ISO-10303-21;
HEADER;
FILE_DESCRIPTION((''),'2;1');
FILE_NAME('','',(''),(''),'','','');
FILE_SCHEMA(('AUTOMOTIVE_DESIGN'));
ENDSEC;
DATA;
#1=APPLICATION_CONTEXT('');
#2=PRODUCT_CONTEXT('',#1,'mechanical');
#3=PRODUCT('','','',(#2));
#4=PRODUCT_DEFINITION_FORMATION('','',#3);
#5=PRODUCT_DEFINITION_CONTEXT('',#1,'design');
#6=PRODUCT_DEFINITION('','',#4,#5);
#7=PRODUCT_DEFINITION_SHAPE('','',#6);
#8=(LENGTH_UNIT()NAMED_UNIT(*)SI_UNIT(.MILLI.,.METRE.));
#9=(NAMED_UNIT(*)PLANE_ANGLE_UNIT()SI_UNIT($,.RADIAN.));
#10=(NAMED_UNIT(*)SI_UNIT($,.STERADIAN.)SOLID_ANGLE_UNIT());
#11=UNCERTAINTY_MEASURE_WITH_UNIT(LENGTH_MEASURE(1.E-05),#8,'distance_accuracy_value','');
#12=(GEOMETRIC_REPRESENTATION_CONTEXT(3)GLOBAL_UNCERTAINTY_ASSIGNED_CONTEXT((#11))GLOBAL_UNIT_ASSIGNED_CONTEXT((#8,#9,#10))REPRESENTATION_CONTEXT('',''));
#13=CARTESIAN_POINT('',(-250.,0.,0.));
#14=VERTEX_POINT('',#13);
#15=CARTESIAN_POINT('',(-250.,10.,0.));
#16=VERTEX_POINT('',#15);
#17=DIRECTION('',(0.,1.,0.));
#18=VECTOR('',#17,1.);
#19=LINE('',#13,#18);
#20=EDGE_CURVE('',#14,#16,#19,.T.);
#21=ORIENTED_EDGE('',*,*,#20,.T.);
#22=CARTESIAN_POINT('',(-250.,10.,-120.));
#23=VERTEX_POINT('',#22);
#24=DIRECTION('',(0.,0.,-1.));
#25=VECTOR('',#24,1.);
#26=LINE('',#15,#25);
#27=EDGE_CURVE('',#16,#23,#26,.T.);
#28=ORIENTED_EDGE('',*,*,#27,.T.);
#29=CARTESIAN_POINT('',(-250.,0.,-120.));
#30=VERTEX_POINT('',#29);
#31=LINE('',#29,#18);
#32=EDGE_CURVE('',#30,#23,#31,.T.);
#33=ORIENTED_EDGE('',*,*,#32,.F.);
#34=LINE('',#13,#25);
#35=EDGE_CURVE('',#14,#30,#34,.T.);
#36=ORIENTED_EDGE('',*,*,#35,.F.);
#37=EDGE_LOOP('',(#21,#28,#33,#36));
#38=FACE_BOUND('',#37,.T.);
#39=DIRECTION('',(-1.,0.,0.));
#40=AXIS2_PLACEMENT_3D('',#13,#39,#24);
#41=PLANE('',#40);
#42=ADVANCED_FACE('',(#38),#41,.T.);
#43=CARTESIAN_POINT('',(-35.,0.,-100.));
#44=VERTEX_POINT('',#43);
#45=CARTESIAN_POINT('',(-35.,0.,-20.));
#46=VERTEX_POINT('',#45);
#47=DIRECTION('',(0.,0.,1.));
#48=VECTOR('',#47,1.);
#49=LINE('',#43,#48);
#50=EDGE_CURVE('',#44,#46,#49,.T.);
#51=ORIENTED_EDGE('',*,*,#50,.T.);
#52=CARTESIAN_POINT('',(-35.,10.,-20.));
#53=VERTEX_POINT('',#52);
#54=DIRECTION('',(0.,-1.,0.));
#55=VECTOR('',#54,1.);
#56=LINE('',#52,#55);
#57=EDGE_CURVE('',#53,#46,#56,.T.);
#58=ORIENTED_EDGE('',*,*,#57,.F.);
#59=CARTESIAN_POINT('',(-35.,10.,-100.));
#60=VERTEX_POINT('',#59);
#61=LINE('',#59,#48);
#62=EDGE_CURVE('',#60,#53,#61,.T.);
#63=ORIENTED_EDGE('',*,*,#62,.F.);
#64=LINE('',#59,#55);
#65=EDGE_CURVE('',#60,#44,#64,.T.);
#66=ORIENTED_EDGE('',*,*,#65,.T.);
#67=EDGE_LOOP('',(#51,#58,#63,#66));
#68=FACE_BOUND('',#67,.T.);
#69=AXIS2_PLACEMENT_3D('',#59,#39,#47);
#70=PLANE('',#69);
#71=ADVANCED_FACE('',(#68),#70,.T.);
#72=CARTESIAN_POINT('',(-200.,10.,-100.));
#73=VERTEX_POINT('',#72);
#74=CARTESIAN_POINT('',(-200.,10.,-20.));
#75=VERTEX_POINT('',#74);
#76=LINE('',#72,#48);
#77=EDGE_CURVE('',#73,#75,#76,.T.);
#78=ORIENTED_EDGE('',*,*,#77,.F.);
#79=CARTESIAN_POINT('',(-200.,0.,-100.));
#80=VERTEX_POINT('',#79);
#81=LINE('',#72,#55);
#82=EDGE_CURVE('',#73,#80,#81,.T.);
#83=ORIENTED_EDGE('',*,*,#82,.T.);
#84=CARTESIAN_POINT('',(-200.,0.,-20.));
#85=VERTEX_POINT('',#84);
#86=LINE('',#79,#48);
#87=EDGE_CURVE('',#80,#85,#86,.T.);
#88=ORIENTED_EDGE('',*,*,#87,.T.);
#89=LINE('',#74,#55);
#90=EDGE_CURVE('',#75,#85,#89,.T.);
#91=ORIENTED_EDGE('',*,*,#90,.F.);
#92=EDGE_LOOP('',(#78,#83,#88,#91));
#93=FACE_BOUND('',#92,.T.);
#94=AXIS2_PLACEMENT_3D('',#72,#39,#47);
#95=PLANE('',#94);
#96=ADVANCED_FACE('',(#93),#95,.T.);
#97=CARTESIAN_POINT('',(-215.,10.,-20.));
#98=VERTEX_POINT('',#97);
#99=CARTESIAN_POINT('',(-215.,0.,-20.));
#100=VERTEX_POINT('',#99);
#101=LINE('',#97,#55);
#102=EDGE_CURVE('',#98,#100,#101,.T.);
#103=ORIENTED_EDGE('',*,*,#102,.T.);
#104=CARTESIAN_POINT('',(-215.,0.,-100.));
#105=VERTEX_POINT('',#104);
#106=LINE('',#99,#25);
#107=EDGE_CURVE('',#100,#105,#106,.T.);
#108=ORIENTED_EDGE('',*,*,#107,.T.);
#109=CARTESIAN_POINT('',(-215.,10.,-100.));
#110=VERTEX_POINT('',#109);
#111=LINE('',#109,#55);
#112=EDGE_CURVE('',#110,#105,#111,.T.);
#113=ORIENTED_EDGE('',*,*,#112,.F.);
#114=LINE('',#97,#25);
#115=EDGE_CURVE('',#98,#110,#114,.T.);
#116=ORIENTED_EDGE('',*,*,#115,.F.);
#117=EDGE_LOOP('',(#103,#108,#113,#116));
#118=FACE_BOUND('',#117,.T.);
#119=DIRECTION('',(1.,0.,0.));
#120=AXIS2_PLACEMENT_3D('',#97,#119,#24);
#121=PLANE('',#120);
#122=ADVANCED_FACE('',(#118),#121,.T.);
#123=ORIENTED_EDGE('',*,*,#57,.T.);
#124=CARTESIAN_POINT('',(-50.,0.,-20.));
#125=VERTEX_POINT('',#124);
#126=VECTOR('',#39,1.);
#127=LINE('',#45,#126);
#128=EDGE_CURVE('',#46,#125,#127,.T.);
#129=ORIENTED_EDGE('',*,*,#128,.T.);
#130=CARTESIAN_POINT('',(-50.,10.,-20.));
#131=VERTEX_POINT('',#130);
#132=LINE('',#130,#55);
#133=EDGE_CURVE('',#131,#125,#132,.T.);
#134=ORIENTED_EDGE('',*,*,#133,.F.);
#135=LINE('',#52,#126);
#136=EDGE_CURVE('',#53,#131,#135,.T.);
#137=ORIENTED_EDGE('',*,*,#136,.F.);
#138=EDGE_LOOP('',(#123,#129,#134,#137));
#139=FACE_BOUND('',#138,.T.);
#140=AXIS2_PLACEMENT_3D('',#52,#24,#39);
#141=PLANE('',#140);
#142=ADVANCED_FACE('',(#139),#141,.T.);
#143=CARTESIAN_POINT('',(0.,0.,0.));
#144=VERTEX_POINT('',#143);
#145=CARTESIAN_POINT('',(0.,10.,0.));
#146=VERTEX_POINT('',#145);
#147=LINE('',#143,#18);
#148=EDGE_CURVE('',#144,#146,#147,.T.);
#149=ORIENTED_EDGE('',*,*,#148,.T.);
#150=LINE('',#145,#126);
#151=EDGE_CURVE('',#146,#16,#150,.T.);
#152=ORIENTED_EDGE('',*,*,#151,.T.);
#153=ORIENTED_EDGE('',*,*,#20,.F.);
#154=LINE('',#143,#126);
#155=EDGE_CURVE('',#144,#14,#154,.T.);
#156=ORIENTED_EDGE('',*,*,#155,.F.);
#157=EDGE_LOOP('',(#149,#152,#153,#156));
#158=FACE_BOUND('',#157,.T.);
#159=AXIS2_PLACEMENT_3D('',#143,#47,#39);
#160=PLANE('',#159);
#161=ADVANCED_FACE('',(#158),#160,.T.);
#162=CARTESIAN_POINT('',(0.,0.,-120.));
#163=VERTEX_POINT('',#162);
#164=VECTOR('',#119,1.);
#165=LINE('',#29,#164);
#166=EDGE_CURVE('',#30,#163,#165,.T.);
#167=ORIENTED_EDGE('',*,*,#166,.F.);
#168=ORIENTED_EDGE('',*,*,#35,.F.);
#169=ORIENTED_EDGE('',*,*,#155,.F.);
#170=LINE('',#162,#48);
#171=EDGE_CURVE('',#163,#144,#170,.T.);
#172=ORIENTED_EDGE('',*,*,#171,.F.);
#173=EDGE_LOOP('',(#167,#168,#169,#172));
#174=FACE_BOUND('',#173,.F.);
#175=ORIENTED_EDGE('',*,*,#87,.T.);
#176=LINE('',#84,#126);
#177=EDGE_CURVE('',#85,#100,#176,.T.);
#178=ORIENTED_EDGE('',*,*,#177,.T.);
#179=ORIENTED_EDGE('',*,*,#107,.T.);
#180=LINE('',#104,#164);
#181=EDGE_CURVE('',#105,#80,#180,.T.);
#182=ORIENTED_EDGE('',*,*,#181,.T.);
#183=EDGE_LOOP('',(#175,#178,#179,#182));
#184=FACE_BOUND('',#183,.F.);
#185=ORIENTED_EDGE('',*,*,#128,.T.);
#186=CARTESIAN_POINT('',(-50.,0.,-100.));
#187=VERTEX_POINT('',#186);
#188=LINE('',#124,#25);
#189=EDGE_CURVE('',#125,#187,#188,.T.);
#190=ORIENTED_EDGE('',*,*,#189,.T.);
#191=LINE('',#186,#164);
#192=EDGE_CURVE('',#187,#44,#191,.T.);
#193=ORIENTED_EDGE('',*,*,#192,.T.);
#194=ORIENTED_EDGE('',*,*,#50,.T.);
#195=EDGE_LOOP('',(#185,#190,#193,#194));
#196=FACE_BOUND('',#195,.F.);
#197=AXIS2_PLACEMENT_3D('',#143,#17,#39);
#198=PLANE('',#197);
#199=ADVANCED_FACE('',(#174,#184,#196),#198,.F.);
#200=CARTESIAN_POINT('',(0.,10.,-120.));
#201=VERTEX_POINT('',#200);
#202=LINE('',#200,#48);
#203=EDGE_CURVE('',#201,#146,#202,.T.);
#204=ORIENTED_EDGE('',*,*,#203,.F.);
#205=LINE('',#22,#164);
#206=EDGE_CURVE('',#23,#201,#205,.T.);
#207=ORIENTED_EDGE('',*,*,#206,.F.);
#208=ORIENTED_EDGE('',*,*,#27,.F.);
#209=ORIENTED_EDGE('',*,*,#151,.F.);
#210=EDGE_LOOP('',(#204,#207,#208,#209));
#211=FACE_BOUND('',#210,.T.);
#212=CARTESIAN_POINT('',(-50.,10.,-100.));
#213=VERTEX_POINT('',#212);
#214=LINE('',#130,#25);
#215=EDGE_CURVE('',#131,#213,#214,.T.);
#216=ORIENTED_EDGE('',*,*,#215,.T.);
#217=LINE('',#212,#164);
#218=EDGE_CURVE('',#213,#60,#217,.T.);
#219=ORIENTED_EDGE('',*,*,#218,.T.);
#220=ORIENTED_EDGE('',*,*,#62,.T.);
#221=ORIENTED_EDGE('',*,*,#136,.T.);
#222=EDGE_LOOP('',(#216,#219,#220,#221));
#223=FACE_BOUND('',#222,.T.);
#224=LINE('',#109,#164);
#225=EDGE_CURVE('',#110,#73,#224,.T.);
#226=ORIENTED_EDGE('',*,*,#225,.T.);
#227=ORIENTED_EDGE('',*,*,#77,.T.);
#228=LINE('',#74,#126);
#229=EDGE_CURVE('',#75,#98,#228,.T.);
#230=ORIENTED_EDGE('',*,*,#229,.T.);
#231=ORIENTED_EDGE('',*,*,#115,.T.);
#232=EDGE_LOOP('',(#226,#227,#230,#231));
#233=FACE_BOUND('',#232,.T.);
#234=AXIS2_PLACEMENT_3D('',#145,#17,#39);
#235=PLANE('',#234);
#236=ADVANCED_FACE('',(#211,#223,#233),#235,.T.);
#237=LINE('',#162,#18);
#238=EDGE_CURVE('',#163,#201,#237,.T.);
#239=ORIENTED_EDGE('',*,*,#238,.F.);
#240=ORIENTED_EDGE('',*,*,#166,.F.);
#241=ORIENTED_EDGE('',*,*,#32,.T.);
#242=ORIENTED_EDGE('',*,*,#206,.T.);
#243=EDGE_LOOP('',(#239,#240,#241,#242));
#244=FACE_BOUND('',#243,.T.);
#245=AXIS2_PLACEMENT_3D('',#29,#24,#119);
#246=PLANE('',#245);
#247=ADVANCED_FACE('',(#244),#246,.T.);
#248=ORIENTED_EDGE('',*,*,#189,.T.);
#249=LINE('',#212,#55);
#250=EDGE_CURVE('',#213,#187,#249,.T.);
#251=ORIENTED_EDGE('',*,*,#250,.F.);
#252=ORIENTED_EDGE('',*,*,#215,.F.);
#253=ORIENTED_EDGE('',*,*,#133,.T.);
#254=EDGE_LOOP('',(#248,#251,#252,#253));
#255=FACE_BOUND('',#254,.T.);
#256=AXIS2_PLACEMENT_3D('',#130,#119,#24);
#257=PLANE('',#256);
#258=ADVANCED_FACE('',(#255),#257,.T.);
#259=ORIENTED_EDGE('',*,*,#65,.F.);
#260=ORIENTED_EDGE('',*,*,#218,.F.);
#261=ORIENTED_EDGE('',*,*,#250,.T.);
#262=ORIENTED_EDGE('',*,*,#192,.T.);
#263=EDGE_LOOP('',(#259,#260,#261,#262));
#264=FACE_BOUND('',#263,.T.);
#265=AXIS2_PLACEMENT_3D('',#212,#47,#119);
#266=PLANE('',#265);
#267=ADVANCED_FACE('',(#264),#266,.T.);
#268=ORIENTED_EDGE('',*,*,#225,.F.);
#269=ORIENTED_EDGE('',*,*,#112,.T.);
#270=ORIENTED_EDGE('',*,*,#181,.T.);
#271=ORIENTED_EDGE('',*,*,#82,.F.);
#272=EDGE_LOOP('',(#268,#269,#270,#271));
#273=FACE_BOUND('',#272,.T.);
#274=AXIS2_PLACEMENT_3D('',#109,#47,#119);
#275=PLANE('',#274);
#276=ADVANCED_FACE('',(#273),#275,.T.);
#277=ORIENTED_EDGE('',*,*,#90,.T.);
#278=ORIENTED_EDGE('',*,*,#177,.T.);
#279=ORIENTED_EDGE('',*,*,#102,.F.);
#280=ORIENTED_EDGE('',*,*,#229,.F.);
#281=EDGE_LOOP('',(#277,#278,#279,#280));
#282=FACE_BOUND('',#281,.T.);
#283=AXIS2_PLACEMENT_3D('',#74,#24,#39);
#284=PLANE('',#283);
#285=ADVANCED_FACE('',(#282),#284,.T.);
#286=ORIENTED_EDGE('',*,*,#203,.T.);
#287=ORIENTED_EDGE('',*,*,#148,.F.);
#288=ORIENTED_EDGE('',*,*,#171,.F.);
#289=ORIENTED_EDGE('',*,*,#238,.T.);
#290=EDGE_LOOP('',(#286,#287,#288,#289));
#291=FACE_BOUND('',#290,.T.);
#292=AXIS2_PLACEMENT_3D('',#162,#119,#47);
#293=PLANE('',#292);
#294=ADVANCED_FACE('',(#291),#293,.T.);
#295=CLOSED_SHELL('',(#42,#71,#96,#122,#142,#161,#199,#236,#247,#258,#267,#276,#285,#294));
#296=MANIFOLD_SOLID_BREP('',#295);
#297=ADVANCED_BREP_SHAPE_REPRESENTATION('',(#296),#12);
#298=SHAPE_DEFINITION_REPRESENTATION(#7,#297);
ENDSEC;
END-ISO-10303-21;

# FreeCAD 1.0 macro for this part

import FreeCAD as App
import Part
import Sketcher
from FreeCAD import Vector


def add_polygon(sketch, points):
    """Adds a closed chain of lines whose ends are joined by coincident constraints."""
    first, n = sketch.GeometryCount, len(points)
    for a, b in zip(points, points[1:] + points[:1]):
        sketch.addGeometry(Part.LineSegment(App.Vector(*a, 0), App.Vector(*b, 0)), False)
    for i in range(n):
        sketch.addConstraint(Sketcher.Constraint("Coincident", first + i, 2, first + (i + 1) % n, 1))

doc = App.newDocument("Part")
body = doc.addObject("PartDesign::Body", "Body")

# Sketch on XZ plane
sketch1 = doc.addObject("Sketcher::SketchObject", "Sketch")
body.addObject(sketch1)
sketch1.AttachmentSupport = (doc.XZ_Plane, [""])
sketch1.MapMode = "FlatFace"
add_polygon(sketch1, [(-250, 0), (0, 0), (0, -120), (-250, -120)])  # lines 0-3
sketch1.addConstraint([
    Sketcher.Constraint("Horizontal", 0),
    Sketcher.Constraint("Vertical", 1),
    Sketcher.Constraint("Horizontal", 2),
    Sketcher.Constraint("Vertical", 3),
    Sketcher.Constraint("Coincident", 0, 2, -1, 1),
    Sketcher.Constraint("DistanceX", 0, 1, 0, 2, 250.0),
    Sketcher.Constraint("DistanceY", 1, 2, 1, 1, 120.0),
])
pad1 = doc.addObject("PartDesign::Pad", "Pad")
body.addObject(pad1)
pad1.Profile = sketch1
pad1.Length = 10
pad1.Reversed = True

# Sketch on XZ plane
sketch2 = doc.addObject("Sketcher::SketchObject", "Sketch001")
body.addObject(sketch2)
sketch2.AttachmentSupport = (doc.XZ_Plane, [""])
sketch2.MapMode = "FlatFace"
sketch2.AttachmentOffset = App.Placement(Vector(0, 0, -10), App.Rotation())
add_polygon(sketch2, [(-200, -100), (-215, -100), (-215, -20), (-200, -20)])  # lines 0-3
add_polygon(sketch2, [(-35, -100), (-50, -100), (-50, -20), (-35, -20)])  # lines 4-7
sketch2.addConstraint([
    Sketcher.Constraint("Horizontal", 0),
    Sketcher.Constraint("Vertical", 1),
    Sketcher.Constraint("Horizontal", 2),
    Sketcher.Constraint("Vertical", 3),
    Sketcher.Constraint("Horizontal", 4),
    Sketcher.Constraint("Vertical", 5),
    Sketcher.Constraint("Horizontal", 6),
    Sketcher.Constraint("Vertical", 7),
    Sketcher.Constraint("Horizontal", 3, 2, 4, 2),
    Sketcher.Constraint("Horizontal", 2, 2, 5, 2),
    Sketcher.Constraint("Equal", 2, 4),
    Sketcher.Constraint("DistanceX", 0, 2, 0, 1, 15.0),
    Sketcher.Constraint("DistanceY", 1, 1, 1, 2, 80.0),
    Sketcher.Constraint("DistanceY", 1, 2, -1, 1, 20.0),
    Sketcher.Constraint("DistanceX", 6, 2, -1, 1, 35.0),
    Sketcher.Constraint("DistanceX", 0, 2, -1, 1, 215.0),
])
pocket1 = doc.addObject("PartDesign::Pocket", "Pocket")
body.addObject(pocket1)
pocket1.Profile = sketch2
pocket1.Length = 10
pocket1.Reversed = True

doc.recompute()
